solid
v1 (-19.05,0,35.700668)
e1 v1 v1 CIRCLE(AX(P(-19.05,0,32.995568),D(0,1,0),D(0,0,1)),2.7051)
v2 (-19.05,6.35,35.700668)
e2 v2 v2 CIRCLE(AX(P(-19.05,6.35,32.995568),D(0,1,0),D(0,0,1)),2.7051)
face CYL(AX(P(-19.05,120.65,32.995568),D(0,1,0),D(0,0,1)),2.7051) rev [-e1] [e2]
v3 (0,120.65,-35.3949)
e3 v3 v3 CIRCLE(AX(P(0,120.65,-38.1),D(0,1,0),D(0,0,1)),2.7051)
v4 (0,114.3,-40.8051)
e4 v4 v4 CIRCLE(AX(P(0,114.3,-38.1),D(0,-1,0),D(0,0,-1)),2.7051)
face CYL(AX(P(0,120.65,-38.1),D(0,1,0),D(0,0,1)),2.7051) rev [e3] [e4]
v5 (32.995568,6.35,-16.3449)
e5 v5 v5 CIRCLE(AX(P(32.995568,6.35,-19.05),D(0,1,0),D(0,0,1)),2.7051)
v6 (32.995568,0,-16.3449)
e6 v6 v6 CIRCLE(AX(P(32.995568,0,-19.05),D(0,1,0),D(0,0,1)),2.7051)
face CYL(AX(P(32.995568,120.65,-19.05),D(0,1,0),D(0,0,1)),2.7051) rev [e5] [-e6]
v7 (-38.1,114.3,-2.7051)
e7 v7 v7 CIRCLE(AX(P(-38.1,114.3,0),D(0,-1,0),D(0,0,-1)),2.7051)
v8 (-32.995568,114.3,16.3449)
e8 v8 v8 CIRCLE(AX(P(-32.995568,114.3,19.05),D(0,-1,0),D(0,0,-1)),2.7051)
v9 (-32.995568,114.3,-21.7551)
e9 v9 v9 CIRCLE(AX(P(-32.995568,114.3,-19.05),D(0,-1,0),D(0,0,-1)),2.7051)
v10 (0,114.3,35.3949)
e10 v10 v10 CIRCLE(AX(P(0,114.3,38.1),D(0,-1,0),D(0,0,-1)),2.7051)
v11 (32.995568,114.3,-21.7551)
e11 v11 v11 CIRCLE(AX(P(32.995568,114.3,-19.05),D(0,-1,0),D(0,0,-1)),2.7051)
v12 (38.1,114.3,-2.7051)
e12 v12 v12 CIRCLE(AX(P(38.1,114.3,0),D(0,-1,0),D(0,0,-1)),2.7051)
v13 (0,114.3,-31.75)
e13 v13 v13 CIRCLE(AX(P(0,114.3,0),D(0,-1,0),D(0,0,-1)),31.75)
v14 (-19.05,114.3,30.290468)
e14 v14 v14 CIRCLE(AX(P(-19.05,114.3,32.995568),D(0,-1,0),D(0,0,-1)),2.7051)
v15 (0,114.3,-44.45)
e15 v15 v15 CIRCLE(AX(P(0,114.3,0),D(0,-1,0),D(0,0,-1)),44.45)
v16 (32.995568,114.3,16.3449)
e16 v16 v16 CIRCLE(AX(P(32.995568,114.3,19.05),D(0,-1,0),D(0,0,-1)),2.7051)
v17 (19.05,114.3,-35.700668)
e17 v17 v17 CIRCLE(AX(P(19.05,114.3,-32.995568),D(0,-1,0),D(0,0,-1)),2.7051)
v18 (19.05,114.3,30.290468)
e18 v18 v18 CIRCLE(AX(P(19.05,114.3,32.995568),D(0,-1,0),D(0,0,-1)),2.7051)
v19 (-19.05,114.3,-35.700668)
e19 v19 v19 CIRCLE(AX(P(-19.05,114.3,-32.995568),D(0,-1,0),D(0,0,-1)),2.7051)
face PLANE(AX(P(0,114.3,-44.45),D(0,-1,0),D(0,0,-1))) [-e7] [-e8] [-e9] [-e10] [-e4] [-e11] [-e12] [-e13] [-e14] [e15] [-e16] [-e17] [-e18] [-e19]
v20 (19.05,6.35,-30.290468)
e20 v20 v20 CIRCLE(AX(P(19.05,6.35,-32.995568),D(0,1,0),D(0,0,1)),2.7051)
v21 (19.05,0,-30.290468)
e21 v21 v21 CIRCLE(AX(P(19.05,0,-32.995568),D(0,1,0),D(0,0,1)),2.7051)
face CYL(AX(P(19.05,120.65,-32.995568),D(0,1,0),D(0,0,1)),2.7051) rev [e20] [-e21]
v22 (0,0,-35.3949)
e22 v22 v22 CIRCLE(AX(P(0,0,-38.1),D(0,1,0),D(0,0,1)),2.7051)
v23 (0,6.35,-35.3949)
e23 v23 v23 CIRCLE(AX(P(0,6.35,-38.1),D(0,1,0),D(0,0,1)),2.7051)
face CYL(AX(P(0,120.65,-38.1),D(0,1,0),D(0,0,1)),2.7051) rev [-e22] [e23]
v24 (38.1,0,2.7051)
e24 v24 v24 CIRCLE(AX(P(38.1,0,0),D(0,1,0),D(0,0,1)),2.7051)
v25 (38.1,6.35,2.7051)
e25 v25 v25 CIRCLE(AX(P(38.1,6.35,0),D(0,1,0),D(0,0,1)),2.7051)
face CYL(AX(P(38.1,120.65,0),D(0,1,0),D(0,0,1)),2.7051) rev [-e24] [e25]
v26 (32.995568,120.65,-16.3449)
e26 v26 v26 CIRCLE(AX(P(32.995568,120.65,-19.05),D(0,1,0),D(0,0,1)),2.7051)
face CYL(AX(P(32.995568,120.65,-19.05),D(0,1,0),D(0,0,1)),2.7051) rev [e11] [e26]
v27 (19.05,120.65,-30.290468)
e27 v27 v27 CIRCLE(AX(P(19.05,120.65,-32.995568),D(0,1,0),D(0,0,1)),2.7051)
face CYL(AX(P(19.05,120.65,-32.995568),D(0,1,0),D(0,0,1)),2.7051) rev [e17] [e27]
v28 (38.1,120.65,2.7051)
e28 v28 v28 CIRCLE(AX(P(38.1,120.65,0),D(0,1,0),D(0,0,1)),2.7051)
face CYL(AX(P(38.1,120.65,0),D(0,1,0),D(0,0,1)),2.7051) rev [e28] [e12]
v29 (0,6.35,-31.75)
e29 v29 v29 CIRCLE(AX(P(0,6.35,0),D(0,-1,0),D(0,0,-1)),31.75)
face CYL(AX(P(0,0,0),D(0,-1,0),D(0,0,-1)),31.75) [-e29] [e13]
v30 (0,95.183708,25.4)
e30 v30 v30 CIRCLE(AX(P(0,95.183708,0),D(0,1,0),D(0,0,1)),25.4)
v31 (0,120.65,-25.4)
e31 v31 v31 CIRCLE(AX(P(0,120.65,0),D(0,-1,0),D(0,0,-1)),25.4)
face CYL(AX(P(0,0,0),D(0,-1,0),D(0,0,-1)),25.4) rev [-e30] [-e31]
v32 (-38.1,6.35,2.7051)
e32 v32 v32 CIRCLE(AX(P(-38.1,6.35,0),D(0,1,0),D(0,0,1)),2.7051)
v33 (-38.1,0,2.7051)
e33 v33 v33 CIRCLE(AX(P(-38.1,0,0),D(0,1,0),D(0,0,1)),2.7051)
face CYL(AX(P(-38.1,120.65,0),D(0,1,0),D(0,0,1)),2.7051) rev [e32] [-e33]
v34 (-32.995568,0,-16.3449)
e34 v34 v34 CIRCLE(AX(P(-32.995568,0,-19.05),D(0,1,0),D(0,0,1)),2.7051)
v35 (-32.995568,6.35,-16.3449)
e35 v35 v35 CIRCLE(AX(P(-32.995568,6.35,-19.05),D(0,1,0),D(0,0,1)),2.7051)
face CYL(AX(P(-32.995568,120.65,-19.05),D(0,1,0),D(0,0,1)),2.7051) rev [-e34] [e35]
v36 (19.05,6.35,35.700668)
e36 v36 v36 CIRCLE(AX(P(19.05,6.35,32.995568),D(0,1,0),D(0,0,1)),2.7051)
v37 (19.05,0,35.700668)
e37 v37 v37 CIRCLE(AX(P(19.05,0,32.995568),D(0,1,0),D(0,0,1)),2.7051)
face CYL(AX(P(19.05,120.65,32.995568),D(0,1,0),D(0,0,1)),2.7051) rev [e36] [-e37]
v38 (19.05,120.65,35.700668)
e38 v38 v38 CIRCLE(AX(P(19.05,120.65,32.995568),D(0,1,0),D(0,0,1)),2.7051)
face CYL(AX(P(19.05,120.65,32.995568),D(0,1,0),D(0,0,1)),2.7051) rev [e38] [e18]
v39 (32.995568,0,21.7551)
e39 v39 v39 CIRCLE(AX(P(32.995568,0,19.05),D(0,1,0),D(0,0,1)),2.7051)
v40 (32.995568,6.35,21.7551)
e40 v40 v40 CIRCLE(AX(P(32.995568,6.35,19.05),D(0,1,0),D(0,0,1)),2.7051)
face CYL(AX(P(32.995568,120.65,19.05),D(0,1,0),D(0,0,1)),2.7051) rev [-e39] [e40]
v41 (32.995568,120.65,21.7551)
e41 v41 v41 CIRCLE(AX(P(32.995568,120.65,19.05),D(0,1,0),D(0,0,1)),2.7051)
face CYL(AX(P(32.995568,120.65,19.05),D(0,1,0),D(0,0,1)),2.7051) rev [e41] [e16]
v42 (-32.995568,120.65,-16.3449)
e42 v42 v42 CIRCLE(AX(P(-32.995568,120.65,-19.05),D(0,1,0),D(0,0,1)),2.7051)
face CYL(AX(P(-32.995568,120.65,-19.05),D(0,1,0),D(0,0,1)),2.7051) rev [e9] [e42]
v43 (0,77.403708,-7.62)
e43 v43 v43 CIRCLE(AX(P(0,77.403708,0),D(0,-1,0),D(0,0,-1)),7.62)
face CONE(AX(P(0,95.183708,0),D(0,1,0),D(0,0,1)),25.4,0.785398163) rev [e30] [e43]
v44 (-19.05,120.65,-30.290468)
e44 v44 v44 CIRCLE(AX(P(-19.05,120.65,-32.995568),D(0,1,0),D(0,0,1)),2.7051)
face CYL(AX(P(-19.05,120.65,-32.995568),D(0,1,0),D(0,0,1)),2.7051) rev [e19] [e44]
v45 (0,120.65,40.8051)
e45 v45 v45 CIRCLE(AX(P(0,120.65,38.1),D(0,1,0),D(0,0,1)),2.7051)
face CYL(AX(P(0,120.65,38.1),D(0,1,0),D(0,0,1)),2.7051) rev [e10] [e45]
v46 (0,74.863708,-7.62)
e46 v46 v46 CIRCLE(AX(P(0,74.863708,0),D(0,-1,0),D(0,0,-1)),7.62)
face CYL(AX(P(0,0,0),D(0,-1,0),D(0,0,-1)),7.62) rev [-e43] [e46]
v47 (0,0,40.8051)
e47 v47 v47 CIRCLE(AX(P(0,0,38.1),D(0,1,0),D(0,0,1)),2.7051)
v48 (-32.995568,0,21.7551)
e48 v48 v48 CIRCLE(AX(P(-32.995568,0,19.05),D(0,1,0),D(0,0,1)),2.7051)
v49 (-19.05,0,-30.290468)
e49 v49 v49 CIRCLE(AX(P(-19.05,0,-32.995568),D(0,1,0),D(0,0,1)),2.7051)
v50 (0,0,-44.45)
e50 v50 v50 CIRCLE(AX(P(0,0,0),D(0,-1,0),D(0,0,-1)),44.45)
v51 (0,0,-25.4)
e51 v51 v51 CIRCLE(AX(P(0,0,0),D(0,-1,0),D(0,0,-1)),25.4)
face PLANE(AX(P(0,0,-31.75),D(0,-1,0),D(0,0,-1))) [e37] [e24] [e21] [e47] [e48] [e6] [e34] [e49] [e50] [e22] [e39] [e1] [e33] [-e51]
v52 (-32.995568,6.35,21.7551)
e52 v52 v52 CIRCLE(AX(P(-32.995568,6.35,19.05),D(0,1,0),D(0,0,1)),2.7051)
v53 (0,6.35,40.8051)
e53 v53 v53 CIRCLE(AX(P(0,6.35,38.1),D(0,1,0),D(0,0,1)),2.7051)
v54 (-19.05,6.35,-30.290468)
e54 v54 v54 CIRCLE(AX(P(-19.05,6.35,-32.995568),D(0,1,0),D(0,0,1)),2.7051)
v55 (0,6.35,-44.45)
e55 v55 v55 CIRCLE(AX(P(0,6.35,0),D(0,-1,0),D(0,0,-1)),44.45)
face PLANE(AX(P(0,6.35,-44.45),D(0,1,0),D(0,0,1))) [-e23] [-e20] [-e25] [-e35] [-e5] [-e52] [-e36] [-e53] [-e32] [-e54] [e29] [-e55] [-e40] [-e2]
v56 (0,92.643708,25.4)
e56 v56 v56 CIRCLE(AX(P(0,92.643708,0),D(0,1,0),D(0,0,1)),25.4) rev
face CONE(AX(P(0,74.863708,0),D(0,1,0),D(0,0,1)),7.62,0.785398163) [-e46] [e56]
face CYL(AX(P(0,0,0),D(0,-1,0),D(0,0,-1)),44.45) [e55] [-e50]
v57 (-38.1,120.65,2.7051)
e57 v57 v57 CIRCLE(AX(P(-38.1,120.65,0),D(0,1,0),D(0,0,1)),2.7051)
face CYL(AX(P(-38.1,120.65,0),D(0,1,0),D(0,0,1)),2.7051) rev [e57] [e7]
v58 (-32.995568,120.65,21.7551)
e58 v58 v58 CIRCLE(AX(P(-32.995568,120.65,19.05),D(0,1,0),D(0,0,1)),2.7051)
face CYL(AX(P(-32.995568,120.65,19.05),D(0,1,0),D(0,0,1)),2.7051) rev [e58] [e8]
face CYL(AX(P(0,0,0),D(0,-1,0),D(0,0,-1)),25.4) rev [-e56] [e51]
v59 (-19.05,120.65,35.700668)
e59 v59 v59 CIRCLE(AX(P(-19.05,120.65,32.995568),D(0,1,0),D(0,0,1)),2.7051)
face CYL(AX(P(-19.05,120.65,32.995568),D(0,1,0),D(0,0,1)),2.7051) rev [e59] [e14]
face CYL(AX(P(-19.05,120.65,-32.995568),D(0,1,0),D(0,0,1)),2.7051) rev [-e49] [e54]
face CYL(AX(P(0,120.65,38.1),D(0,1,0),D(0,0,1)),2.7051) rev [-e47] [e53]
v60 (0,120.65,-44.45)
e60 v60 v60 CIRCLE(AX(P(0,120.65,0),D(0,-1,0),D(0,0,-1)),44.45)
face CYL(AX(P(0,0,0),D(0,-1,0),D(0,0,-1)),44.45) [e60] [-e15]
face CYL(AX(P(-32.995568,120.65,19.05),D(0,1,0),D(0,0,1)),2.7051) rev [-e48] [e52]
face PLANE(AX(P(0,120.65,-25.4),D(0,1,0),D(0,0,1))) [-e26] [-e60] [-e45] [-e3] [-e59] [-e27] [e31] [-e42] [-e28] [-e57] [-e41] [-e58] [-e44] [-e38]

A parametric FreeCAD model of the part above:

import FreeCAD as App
import Part
import Sketcher
Q = App.Units.Quantity


def add_polygon(sketch, points):
    """Adds a closed chain of lines whose ends are joined by coincident constraints."""
    first, n = sketch.GeometryCount, len(points)
    for a, b in zip(points, points[1:] + points[:1]):
        sketch.addGeometry(Part.LineSegment(App.Vector(*a, 0), App.Vector(*b, 0)), False)
    for i in range(n):
        sketch.addConstraint(Sketcher.Constraint("Coincident", first + i, 2, first + (i + 1) % n, 1))

doc = App.newDocument("Part")
body = doc.addObject("PartDesign::Body", "Body")

sketch1 = body.newObject("Sketcher::SketchObject", "Sketch")
sketch1.AttachmentSupport = (doc.getObject("YZ_Plane"), [""])
sketch1.MapMode = "FlatFace"
add_polygon(sketch1, [(6, -32), (114, -32), (114, -44), (121, -44), (121, -25), (0, -25), (0, -44), (6, -44)])
sketch1.addConstraint([
    Sketcher.Constraint("Horizontal", 0),
    Sketcher.Constraint("Vertical", 1),
    Sketcher.Constraint("Horizontal", 2),
    Sketcher.Constraint("Vertical", 3),
    Sketcher.Constraint("Horizontal", 4),
    Sketcher.Constraint("Vertical", 5),
    Sketcher.Constraint("Horizontal", 6),
    Sketcher.Constraint("Vertical", 7),
    Sketcher.Constraint("PointOnObject", 4, 2, -2),
    Sketcher.Constraint("Horizontal", 2, 2, 5, 2),
    Sketcher.Constraint("Equal", 2, 6),
    Sketcher.Constraint("DistanceY", 1, 2, 1, 1, Q("0.5 in")),
    Sketcher.Constraint("DistanceY", 3, 2, -1, 1, Q("1 in")),
    Sketcher.Constraint("DistanceX", 0, 1, 0, 2, Q("4.25 in")),
    Sketcher.Constraint("DistanceX", 2, 1, 2, 2, Q("0.25 in")),
    Sketcher.Constraint("DistanceY", 3, 1, 3, 2, Q("0.75 in")),
])
revolution = body.newObject("PartDesign::Revolution", "Revolution")
revolution.Profile = sketch1
revolution.ReferenceAxis = (sketch1, ["H_Axis"])
revolution.Angle = 360

sketch2 = body.newObject("Sketcher::SketchObject", "Sketch001")
sketch2.AttachmentSupport = (doc.getObject("YZ_Plane"), [""])
sketch2.MapMode = "FlatFace"
add_polygon(sketch2, [(92.6, -25.4), (95.2, -25.4), (77.4, -7.6), (74.9, -7.6)])
sketch2.addConstraint([
    Sketcher.Constraint("Horizontal", 0),
    Sketcher.Constraint("Horizontal", 2),
    Sketcher.Constraint("Parallel", 1, 3),
    Sketcher.Constraint("DistanceX", 0, 1, 0, 2, Q("0.1 in")),
    Sketcher.Constraint("DistanceY", 0, 2, -1, 1, Q("1 in")),
    Sketcher.Constraint("Angle", 1, Q("135 deg")),
    Sketcher.Constraint("DistanceY", 1, 2, -1, 1, Q("0.3 in")),
    Sketcher.Constraint("DistanceX", -1, 1, 0, 2, Q("95.183708 mm")),
])
revolution2 = body.newObject("PartDesign::Revolution", "Revolution001")
revolution2.Profile = sketch2
revolution2.ReferenceAxis = (sketch2, ["H_Axis"])
revolution2.Angle = 360

sketch3 = body.newObject("Sketcher::SketchObject", "Sketch002")
sketch3.AttachmentSupport = (doc.getObject("XZ_Plane"), [""])
sketch3.MapMode = "FlatFace"
sketch3.AttachmentOffset = App.Placement(App.Vector(0, 0, -4.75 * 25.4), App.Rotation())
sketch3.addGeometry([
    Part.Circle(App.Vector(0, 0, 0), App.Vector(0, 0, 1), 2.7),
    Part.Circle(App.Vector(-38.1, 0, 0), App.Vector(0, 0, 1), 2.7),
    Part.Circle(App.Vector(-33, -19.1, 0), App.Vector(0, 0, 1), 2.7),
    Part.Circle(App.Vector(-19.1, -33, 0), App.Vector(0, 0, 1), 2.7),
    Part.Circle(App.Vector(0, -38.1, 0), App.Vector(0, 0, 1), 2.7),
    Part.Circle(App.Vector(19.1, -33, 0), App.Vector(0, 0, 1), 2.7),
    Part.Circle(App.Vector(33, -19.1, 0), App.Vector(0, 0, 1), 2.7),
    Part.Circle(App.Vector(38.1, 0, 0), App.Vector(0, 0, 1), 2.7),
    Part.Circle(App.Vector(33, 19.1, 0), App.Vector(0, 0, 1), 2.7),
    Part.Circle(App.Vector(19.1, 33, 0), App.Vector(0, 0, 1), 2.7),
    Part.Circle(App.Vector(0, 38.1, 0), App.Vector(0, 0, 1), 2.7),
    Part.Circle(App.Vector(-19.1, 33, 0), App.Vector(0, 0, 1), 2.7),
    Part.Circle(App.Vector(-33, 19.1, 0), App.Vector(0, 0, 1), 2.7),
], False)
sketch3.addConstraint([
    Sketcher.Constraint("Coincident", 0, 3, -1, 1),
    Sketcher.Constraint("Equal", 0, 1),
    Sketcher.Constraint("Equal", 1, 2),
    Sketcher.Constraint("Equal", 2, 3),
    Sketcher.Constraint("Equal", 3, 4),
    Sketcher.Constraint("Equal", 4, 5),
    Sketcher.Constraint("Equal", 5, 6),
    Sketcher.Constraint("Equal", 6, 7),
    Sketcher.Constraint("Equal", 7, 8),
    Sketcher.Constraint("Equal", 8, 9),
    Sketcher.Constraint("Equal", 9, 10),
    Sketcher.Constraint("Equal", 10, 11),
    Sketcher.Constraint("Equal", 11, 12),
    Sketcher.Constraint("Symmetric", 1, 3, 7, 3, -1, 1),
    Sketcher.Constraint("Symmetric", 2, 3, 8, 3, -1, 1),
    Sketcher.Constraint("Symmetric", 3, 3, 9, 3, -1, 1),
    Sketcher.Constraint("Symmetric", 4, 3, 10, 3, -1, 1),
    Sketcher.Constraint("Symmetric", 5, 3, 11, 3, -1, 1),
    Sketcher.Constraint("Symmetric", 6, 3, 12, 3, -1, 1),
    Sketcher.Constraint("Symmetric", 3, 3, 5, 3, -2),
    Sketcher.Constraint("Symmetric", 2, 3, 6, 3, -2),
    Sketcher.Constraint("PointOnObject", 1, 3, -1),
    Sketcher.Constraint("PointOnObject", 4, 3, -2),
    Sketcher.Constraint("Diameter", 0, Q("0.213 in")),
    Sketcher.Constraint("DistanceX", 1, 3, -1, 1, Q("1.5 in")),
    Sketcher.Constraint("DistanceY", 4, 3, -1, 1, Q("1.5 in")),
    Sketcher.Constraint("DistanceX", 3, 3, 5, 3, Q("1.5 in")),
    Sketcher.Constraint("DistanceY", 6, 3, 8, 3, Q("1.5 in")),
    Sketcher.Constraint("DistanceX", 2, 3, -1, 1, Q("32.995568 mm")),
    Sketcher.Constraint("DistanceY", 3, 3, -1, 1, Q("32.995568 mm")),
])
doc.recompute()
hole = body.newObject("PartDesign::Hole", "Hole")
hole.Profile = sketch3
hole.ThreadType = "None"
hole.Diameter = Q("0.213 in")
hole.DepthType = "ThroughAll"
hole.Reversed = True

doc.recompute()
